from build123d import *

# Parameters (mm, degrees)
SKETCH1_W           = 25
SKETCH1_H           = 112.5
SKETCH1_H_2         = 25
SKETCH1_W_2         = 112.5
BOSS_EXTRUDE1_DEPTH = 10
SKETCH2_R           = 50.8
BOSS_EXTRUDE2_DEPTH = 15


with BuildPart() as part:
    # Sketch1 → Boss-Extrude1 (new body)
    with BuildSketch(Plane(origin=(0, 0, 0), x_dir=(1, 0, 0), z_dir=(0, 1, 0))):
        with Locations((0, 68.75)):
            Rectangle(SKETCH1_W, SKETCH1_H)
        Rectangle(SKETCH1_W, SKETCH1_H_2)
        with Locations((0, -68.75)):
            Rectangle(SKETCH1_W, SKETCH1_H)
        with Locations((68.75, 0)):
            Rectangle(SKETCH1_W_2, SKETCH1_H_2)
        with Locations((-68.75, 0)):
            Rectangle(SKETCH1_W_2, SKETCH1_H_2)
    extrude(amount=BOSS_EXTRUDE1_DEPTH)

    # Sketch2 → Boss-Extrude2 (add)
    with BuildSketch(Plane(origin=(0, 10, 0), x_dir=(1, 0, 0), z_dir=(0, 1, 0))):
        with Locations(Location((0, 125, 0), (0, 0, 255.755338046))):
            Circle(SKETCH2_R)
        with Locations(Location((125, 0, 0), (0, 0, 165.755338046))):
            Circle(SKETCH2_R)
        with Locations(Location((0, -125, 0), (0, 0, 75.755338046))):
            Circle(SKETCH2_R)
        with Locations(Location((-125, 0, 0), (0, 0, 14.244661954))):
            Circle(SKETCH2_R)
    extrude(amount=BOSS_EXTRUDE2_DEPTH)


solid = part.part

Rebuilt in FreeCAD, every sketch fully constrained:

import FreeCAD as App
import Part
import Sketcher
from FreeCAD import Vector


def add_polygon(sketch, points):
    """Adds a closed chain of lines whose ends are joined by coincident constraints."""
    first, n = sketch.GeometryCount, len(points)
    for a, b in zip(points, points[1:] + points[:1]):
        sketch.addGeometry(Part.LineSegment(App.Vector(*a, 0), App.Vector(*b, 0)), False)
    for i in range(n):
        sketch.addConstraint(Sketcher.Constraint("Coincident", first + i, 2, first + (i + 1) % n, 1))

doc = App.newDocument("Part")
body = doc.addObject("PartDesign::Body", "Body")

# Sketch on XZ plane
sketch1 = body.newObject("Sketcher::SketchObject", "Sketch")
sketch1.AttachmentSupport = (doc.getObject("XZ_Plane"), [""])
sketch1.MapMode = "FlatFace"
add_polygon(sketch1, [(-12, -125), (-12, -12), (-125, -12), (-125, 12), (-12, 12), (-12, 125), (12, 125), (12, 12), (125, 12), (125, -12), (12, -12), (12, -125)])  # lines 0-11
sketch1.addConstraint(Sketcher.Constraint("Vertical", 0))
sketch1.addConstraint(Sketcher.Constraint("Horizontal", 1))
sketch1.addConstraint(Sketcher.Constraint("Vertical", 2))
sketch1.addConstraint(Sketcher.Constraint("Horizontal", 3))
sketch1.addConstraint(Sketcher.Constraint("Vertical", 4))
sketch1.addConstraint(Sketcher.Constraint("Horizontal", 5))
sketch1.addConstraint(Sketcher.Constraint("Vertical", 6))
sketch1.addConstraint(Sketcher.Constraint("Horizontal", 7))
sketch1.addConstraint(Sketcher.Constraint("Vertical", 8))
sketch1.addConstraint(Sketcher.Constraint("Horizontal", 9))
sketch1.addConstraint(Sketcher.Constraint("Vertical", 10))
sketch1.addConstraint(Sketcher.Constraint("Horizontal", 11))
sketch1.addConstraint(Sketcher.Constraint("Symmetric", 0, 2, 6, 2, -1, 1))
sketch1.addConstraint(Sketcher.Constraint("Symmetric", 2, 2, 8, 2, -1, 1))
sketch1.addConstraint(Sketcher.Constraint("Symmetric", 4, 2, 10, 2, -1, 1))
sketch1.addConstraint(Sketcher.Constraint("Symmetric", 3, 2, 6, 2, -2))
sketch1.addConstraint(Sketcher.Constraint("Equal", 9, 0))
sketch1.addConstraint(Sketcher.Constraint("Equal", 11, 2))
sketch1.addConstraint(Sketcher.Constraint("DistanceX", 5, 1, 5, 2, 25.0))
sketch1.addConstraint(Sketcher.Constraint("DistanceX", 1, 2, 1, 1, 112.5))
pad1 = body.newObject("PartDesign::Pad", "Pad")
pad1.Profile = sketch1
pad1.Length = 10
pad1.Reversed = True

# Sketch on XZ plane
sketch2 = body.newObject("Sketcher::SketchObject", "Sketch001")
sketch2.AttachmentSupport = (doc.getObject("XZ_Plane"), [""])
sketch2.MapMode = "FlatFace"
sketch2.AttachmentOffset = App.Placement(Vector(0, 0, -10), App.Rotation())
sketch2.addGeometry(Part.Circle(Vector(0, -125, 0), Vector(0, 0, 1), 51), False)
sketch2.addGeometry(Part.Circle(Vector(125, 0, 0), Vector(0, 0, 1), 51), False)
sketch2.addGeometry(Part.Circle(Vector(0, 125, 0), Vector(0, 0, 1), 51), False)
sketch2.addGeometry(Part.Circle(Vector(-125, 0, 0), Vector(0, 0, 1), 51), False)
sketch2.addConstraint(Sketcher.Constraint("Equal", 0, 1))
sketch2.addConstraint(Sketcher.Constraint("Equal", 1, 2))
sketch2.addConstraint(Sketcher.Constraint("Equal", 2, 3))
sketch2.addConstraint(Sketcher.Constraint("Symmetric", 0, 3, 2, 3, -1, 1))
sketch2.addConstraint(Sketcher.Constraint("Symmetric", 1, 3, 3, 3, -1, 1))
sketch2.addConstraint(Sketcher.Constraint("PointOnObject", 0, 3, -2))
sketch2.addConstraint(Sketcher.Constraint("PointOnObject", 1, 3, -1))
sketch2.addConstraint(Sketcher.Constraint("Diameter", 0, 101.6))
sketch2.addConstraint(Sketcher.Constraint("DistanceY", 0, 3, -1, 1, 125.0))
sketch2.addConstraint(Sketcher.Constraint("DistanceX", -1, 1, 1, 3, 125.0))
pad2 = body.newObject("PartDesign::Pad", "Pad001")
pad2.Profile = sketch2
pad2.Length = 15
pad2.Reversed = True

doc.recompute()
